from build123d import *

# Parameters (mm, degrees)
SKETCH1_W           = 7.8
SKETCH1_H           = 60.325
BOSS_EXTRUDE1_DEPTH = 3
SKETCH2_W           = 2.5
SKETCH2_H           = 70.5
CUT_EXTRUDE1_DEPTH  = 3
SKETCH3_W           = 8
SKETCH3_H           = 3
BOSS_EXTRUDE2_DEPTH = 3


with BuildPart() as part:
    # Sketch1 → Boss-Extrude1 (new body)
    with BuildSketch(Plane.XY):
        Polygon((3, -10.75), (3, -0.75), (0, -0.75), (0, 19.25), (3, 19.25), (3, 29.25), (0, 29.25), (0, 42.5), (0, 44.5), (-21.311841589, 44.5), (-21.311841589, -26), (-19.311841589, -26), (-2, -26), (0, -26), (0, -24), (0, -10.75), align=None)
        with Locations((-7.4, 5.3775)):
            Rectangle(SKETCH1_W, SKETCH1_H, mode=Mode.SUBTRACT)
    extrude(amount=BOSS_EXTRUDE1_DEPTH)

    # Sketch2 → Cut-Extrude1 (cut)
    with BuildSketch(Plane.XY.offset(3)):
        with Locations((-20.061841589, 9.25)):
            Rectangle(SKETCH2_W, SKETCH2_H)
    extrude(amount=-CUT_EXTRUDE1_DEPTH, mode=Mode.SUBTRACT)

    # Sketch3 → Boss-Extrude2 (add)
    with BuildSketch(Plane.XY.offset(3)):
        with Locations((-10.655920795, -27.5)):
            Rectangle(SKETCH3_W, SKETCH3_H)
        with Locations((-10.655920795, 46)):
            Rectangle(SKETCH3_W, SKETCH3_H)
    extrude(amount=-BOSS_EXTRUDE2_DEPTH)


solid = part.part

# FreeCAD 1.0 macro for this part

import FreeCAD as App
import Part
import Sketcher

V = App.Vector
Q = App.Units.Quantity


def add_polygon(sketch, points):
    """Adds a closed chain of lines whose ends are joined by coincident constraints."""
    first, n = sketch.GeometryCount, len(points)
    for a, b in zip(points, points[1:] + points[:1]):
        sketch.addGeometry(Part.LineSegment(App.Vector(*a, 0), App.Vector(*b, 0)), False)
    for i in range(n):
        sketch.addConstraint(Sketcher.Constraint("Coincident", first + i, 2, first + (i + 1) % n, 1))

doc = App.newDocument("Part")
body = doc.addObject("PartDesign::Body", "Body")

sketch1 = body.newObject("Sketcher::SketchObject", "Sketch")
sketch1.AttachmentSupport = (doc.getObject("XY_Plane"), [""])
sketch1.MapMode = "FlatFace"
add_polygon(sketch1, [(3, -10.75), (3, -0.75), (0, -0.75), (0, 19.25), (3, 19.25), (3, 29.25), (0, 29.25), (0, 44.5), (-21.311842, 44.5), (-21.311842, -26), (0, -26), (0, -10.75)])
add_polygon(sketch1, [(-3.5, -24.785), (-11.3, -24.785), (-11.3, 35.54), (-3.5, 35.54)])
sketch1.addConstraint(Sketcher.Constraint("Vertical", 0))
sketch1.addConstraint(Sketcher.Constraint("Horizontal", 1))
sketch1.addConstraint(Sketcher.Constraint("Vertical", 2))
sketch1.addConstraint(Sketcher.Constraint("Horizontal", 3))
sketch1.addConstraint(Sketcher.Constraint("Vertical", 4))
sketch1.addConstraint(Sketcher.Constraint("Horizontal", 5))
sketch1.addConstraint(Sketcher.Constraint("Vertical", 6))
sketch1.addConstraint(Sketcher.Constraint("Horizontal", 7))
sketch1.addConstraint(Sketcher.Constraint("Vertical", 8))
sketch1.addConstraint(Sketcher.Constraint("Horizontal", 9))
sketch1.addConstraint(Sketcher.Constraint("Vertical", 10))
sketch1.addConstraint(Sketcher.Constraint("Horizontal", 11))
sketch1.addConstraint(Sketcher.Constraint("Horizontal", 12))
sketch1.addConstraint(Sketcher.Constraint("Vertical", 13))
sketch1.addConstraint(Sketcher.Constraint("Horizontal", 14))
sketch1.addConstraint(Sketcher.Constraint("Vertical", 15))
sketch1.addConstraint(Sketcher.Constraint("PointOnObject", 1, 2, -2))
sketch1.addConstraint(Sketcher.Constraint("PointOnObject", 5, 2, -2))
sketch1.addConstraint(Sketcher.Constraint("PointOnObject", 9, 2, -2))
sketch1.addConstraint(Sketcher.Constraint("Vertical", 0, 2, 3, 2))
sketch1.addConstraint(Sketcher.Constraint("Equal", 0, 4))
sketch1.addConstraint(Sketcher.Constraint("Equal", 6, 10))
sketch1.addConstraint(Sketcher.Constraint("DistanceX", 1, 2, 1, 1, Q("3 mm")))
sketch1.addConstraint(Sketcher.Constraint("DistanceY", 0, 1, 0, 2, Q("10 mm")))
sketch1.addConstraint(Sketcher.Constraint("DistanceY", 2, 1, 2, 2, Q("20 mm")))
sketch1.addConstraint(Sketcher.Constraint("DistanceX", 12, 2, 12, 1, Q("7.8 mm")))
sketch1.addConstraint(Sketcher.Constraint("DistanceY", 8, 2, 8, 1, Q("70.5 mm")))
sketch1.addConstraint(Sketcher.Constraint("DistanceY", 8, 2, -1, 1, Q("26 mm")))
sketch1.addConstraint(Sketcher.Constraint("DistanceX", 12, 2, -1, 1, Q("11.3 mm")))
sketch1.addConstraint(Sketcher.Constraint("DistanceY", 13, 1, 13, 2, Q("60.325 mm")))
sketch1.addConstraint(Sketcher.Constraint("DistanceY", -1, 1, 13, 2, Q("35.54 mm")))
sketch1.addConstraint(Sketcher.Constraint("DistanceX", 7, 2, 7, 1, Q("21.311842 mm")))
pad1 = body.newObject("PartDesign::Pad", "Pad")
pad1.Profile = sketch1
pad1.Length = 3

sketch2 = body.newObject("Sketcher::SketchObject", "Sketch001")
sketch2.AttachmentSupport = (doc.getObject("XY_Plane"), [""])
sketch2.MapMode = "FlatFace"
sketch2.AttachmentOffset = App.Placement(V(0, 0, 3), App.Rotation())
add_polygon(sketch2, [(-21.311842, 44.5), (-21.311842, -26), (-18.811842, -26), (-18.811842, 44.5)])
sketch2.addConstraint(Sketcher.Constraint("Vertical", 0))
sketch2.addConstraint(Sketcher.Constraint("Horizontal", 1))
sketch2.addConstraint(Sketcher.Constraint("Vertical", 2))
sketch2.addConstraint(Sketcher.Constraint("Horizontal", 3))
sketch2.addConstraint(Sketcher.Constraint("DistanceX", 1, 1, 1, 2, Q("2.5 mm")))
sketch2.addConstraint(Sketcher.Constraint("DistanceY", 0, 2, 0, 1, Q("70.5 mm")))
sketch2.addConstraint(Sketcher.Constraint("DistanceY", 0, 2, -1, 1, Q("26 mm")))
sketch2.addConstraint(Sketcher.Constraint("DistanceX", 0, 2, -1, 1, Q("21.311842 mm")))
pocket1 = body.newObject("PartDesign::Pocket", "Pocket")
pocket1.Profile = sketch2
pocket1.Length = 3

sketch3 = body.newObject("Sketcher::SketchObject", "Sketch002")
sketch3.AttachmentSupport = (doc.getObject("XY_Plane"), [""])
sketch3.MapMode = "FlatFace"
sketch3.AttachmentOffset = App.Placement(V(0, 0, 3), App.Rotation())
add_polygon(sketch3, [(-14.655921, -26), (-14.655921, -29), (-6.655921, -29), (-6.655921, -26)])
add_polygon(sketch3, [(-14.655921, 47.5), (-14.655921, 44.5), (-6.655921, 44.5), (-6.655921, 47.5)])
sketch3.addConstraint(Sketcher.Constraint("Vertical", 0))
sketch3.addConstraint(Sketcher.Constraint("Horizontal", 1))
sketch3.addConstraint(Sketcher.Constraint("Vertical", 2))
sketch3.addConstraint(Sketcher.Constraint("Horizontal", 3))
sketch3.addConstraint(Sketcher.Constraint("Vertical", 4))
sketch3.addConstraint(Sketcher.Constraint("Horizontal", 5))
sketch3.addConstraint(Sketcher.Constraint("Vertical", 6))
sketch3.addConstraint(Sketcher.Constraint("Horizontal", 7))
sketch3.addConstraint(Sketcher.Constraint("Vertical", 3, 2, 4, 2))
sketch3.addConstraint(Sketcher.Constraint("Vertical", 2, 2, 5, 2))
sketch3.addConstraint(Sketcher.Constraint("Equal", 2, 4))
sketch3.addConstraint(Sketcher.Constraint("DistanceX", 1, 1, 1, 2, Q("8 mm")))
sketch3.addConstraint(Sketcher.Constraint("DistanceY", 0, 2, 0, 1, Q("3 mm")))
sketch3.addConstraint(Sketcher.Constraint("DistanceY", 0, 2, -1, 1, Q("29 mm")))
sketch3.addConstraint(Sketcher.Constraint("DistanceY", -1, 1, 4, 2, Q("44.5 mm")))
sketch3.addConstraint(Sketcher.Constraint("DistanceX", 0, 2, -1, 1, Q("14.655921 mm")))
pad2 = body.newObject("PartDesign::Pad", "Pad001")
pad2.Profile = sketch3
pad2.Length = 3
pad2.Reversed = True

doc.recompute()
